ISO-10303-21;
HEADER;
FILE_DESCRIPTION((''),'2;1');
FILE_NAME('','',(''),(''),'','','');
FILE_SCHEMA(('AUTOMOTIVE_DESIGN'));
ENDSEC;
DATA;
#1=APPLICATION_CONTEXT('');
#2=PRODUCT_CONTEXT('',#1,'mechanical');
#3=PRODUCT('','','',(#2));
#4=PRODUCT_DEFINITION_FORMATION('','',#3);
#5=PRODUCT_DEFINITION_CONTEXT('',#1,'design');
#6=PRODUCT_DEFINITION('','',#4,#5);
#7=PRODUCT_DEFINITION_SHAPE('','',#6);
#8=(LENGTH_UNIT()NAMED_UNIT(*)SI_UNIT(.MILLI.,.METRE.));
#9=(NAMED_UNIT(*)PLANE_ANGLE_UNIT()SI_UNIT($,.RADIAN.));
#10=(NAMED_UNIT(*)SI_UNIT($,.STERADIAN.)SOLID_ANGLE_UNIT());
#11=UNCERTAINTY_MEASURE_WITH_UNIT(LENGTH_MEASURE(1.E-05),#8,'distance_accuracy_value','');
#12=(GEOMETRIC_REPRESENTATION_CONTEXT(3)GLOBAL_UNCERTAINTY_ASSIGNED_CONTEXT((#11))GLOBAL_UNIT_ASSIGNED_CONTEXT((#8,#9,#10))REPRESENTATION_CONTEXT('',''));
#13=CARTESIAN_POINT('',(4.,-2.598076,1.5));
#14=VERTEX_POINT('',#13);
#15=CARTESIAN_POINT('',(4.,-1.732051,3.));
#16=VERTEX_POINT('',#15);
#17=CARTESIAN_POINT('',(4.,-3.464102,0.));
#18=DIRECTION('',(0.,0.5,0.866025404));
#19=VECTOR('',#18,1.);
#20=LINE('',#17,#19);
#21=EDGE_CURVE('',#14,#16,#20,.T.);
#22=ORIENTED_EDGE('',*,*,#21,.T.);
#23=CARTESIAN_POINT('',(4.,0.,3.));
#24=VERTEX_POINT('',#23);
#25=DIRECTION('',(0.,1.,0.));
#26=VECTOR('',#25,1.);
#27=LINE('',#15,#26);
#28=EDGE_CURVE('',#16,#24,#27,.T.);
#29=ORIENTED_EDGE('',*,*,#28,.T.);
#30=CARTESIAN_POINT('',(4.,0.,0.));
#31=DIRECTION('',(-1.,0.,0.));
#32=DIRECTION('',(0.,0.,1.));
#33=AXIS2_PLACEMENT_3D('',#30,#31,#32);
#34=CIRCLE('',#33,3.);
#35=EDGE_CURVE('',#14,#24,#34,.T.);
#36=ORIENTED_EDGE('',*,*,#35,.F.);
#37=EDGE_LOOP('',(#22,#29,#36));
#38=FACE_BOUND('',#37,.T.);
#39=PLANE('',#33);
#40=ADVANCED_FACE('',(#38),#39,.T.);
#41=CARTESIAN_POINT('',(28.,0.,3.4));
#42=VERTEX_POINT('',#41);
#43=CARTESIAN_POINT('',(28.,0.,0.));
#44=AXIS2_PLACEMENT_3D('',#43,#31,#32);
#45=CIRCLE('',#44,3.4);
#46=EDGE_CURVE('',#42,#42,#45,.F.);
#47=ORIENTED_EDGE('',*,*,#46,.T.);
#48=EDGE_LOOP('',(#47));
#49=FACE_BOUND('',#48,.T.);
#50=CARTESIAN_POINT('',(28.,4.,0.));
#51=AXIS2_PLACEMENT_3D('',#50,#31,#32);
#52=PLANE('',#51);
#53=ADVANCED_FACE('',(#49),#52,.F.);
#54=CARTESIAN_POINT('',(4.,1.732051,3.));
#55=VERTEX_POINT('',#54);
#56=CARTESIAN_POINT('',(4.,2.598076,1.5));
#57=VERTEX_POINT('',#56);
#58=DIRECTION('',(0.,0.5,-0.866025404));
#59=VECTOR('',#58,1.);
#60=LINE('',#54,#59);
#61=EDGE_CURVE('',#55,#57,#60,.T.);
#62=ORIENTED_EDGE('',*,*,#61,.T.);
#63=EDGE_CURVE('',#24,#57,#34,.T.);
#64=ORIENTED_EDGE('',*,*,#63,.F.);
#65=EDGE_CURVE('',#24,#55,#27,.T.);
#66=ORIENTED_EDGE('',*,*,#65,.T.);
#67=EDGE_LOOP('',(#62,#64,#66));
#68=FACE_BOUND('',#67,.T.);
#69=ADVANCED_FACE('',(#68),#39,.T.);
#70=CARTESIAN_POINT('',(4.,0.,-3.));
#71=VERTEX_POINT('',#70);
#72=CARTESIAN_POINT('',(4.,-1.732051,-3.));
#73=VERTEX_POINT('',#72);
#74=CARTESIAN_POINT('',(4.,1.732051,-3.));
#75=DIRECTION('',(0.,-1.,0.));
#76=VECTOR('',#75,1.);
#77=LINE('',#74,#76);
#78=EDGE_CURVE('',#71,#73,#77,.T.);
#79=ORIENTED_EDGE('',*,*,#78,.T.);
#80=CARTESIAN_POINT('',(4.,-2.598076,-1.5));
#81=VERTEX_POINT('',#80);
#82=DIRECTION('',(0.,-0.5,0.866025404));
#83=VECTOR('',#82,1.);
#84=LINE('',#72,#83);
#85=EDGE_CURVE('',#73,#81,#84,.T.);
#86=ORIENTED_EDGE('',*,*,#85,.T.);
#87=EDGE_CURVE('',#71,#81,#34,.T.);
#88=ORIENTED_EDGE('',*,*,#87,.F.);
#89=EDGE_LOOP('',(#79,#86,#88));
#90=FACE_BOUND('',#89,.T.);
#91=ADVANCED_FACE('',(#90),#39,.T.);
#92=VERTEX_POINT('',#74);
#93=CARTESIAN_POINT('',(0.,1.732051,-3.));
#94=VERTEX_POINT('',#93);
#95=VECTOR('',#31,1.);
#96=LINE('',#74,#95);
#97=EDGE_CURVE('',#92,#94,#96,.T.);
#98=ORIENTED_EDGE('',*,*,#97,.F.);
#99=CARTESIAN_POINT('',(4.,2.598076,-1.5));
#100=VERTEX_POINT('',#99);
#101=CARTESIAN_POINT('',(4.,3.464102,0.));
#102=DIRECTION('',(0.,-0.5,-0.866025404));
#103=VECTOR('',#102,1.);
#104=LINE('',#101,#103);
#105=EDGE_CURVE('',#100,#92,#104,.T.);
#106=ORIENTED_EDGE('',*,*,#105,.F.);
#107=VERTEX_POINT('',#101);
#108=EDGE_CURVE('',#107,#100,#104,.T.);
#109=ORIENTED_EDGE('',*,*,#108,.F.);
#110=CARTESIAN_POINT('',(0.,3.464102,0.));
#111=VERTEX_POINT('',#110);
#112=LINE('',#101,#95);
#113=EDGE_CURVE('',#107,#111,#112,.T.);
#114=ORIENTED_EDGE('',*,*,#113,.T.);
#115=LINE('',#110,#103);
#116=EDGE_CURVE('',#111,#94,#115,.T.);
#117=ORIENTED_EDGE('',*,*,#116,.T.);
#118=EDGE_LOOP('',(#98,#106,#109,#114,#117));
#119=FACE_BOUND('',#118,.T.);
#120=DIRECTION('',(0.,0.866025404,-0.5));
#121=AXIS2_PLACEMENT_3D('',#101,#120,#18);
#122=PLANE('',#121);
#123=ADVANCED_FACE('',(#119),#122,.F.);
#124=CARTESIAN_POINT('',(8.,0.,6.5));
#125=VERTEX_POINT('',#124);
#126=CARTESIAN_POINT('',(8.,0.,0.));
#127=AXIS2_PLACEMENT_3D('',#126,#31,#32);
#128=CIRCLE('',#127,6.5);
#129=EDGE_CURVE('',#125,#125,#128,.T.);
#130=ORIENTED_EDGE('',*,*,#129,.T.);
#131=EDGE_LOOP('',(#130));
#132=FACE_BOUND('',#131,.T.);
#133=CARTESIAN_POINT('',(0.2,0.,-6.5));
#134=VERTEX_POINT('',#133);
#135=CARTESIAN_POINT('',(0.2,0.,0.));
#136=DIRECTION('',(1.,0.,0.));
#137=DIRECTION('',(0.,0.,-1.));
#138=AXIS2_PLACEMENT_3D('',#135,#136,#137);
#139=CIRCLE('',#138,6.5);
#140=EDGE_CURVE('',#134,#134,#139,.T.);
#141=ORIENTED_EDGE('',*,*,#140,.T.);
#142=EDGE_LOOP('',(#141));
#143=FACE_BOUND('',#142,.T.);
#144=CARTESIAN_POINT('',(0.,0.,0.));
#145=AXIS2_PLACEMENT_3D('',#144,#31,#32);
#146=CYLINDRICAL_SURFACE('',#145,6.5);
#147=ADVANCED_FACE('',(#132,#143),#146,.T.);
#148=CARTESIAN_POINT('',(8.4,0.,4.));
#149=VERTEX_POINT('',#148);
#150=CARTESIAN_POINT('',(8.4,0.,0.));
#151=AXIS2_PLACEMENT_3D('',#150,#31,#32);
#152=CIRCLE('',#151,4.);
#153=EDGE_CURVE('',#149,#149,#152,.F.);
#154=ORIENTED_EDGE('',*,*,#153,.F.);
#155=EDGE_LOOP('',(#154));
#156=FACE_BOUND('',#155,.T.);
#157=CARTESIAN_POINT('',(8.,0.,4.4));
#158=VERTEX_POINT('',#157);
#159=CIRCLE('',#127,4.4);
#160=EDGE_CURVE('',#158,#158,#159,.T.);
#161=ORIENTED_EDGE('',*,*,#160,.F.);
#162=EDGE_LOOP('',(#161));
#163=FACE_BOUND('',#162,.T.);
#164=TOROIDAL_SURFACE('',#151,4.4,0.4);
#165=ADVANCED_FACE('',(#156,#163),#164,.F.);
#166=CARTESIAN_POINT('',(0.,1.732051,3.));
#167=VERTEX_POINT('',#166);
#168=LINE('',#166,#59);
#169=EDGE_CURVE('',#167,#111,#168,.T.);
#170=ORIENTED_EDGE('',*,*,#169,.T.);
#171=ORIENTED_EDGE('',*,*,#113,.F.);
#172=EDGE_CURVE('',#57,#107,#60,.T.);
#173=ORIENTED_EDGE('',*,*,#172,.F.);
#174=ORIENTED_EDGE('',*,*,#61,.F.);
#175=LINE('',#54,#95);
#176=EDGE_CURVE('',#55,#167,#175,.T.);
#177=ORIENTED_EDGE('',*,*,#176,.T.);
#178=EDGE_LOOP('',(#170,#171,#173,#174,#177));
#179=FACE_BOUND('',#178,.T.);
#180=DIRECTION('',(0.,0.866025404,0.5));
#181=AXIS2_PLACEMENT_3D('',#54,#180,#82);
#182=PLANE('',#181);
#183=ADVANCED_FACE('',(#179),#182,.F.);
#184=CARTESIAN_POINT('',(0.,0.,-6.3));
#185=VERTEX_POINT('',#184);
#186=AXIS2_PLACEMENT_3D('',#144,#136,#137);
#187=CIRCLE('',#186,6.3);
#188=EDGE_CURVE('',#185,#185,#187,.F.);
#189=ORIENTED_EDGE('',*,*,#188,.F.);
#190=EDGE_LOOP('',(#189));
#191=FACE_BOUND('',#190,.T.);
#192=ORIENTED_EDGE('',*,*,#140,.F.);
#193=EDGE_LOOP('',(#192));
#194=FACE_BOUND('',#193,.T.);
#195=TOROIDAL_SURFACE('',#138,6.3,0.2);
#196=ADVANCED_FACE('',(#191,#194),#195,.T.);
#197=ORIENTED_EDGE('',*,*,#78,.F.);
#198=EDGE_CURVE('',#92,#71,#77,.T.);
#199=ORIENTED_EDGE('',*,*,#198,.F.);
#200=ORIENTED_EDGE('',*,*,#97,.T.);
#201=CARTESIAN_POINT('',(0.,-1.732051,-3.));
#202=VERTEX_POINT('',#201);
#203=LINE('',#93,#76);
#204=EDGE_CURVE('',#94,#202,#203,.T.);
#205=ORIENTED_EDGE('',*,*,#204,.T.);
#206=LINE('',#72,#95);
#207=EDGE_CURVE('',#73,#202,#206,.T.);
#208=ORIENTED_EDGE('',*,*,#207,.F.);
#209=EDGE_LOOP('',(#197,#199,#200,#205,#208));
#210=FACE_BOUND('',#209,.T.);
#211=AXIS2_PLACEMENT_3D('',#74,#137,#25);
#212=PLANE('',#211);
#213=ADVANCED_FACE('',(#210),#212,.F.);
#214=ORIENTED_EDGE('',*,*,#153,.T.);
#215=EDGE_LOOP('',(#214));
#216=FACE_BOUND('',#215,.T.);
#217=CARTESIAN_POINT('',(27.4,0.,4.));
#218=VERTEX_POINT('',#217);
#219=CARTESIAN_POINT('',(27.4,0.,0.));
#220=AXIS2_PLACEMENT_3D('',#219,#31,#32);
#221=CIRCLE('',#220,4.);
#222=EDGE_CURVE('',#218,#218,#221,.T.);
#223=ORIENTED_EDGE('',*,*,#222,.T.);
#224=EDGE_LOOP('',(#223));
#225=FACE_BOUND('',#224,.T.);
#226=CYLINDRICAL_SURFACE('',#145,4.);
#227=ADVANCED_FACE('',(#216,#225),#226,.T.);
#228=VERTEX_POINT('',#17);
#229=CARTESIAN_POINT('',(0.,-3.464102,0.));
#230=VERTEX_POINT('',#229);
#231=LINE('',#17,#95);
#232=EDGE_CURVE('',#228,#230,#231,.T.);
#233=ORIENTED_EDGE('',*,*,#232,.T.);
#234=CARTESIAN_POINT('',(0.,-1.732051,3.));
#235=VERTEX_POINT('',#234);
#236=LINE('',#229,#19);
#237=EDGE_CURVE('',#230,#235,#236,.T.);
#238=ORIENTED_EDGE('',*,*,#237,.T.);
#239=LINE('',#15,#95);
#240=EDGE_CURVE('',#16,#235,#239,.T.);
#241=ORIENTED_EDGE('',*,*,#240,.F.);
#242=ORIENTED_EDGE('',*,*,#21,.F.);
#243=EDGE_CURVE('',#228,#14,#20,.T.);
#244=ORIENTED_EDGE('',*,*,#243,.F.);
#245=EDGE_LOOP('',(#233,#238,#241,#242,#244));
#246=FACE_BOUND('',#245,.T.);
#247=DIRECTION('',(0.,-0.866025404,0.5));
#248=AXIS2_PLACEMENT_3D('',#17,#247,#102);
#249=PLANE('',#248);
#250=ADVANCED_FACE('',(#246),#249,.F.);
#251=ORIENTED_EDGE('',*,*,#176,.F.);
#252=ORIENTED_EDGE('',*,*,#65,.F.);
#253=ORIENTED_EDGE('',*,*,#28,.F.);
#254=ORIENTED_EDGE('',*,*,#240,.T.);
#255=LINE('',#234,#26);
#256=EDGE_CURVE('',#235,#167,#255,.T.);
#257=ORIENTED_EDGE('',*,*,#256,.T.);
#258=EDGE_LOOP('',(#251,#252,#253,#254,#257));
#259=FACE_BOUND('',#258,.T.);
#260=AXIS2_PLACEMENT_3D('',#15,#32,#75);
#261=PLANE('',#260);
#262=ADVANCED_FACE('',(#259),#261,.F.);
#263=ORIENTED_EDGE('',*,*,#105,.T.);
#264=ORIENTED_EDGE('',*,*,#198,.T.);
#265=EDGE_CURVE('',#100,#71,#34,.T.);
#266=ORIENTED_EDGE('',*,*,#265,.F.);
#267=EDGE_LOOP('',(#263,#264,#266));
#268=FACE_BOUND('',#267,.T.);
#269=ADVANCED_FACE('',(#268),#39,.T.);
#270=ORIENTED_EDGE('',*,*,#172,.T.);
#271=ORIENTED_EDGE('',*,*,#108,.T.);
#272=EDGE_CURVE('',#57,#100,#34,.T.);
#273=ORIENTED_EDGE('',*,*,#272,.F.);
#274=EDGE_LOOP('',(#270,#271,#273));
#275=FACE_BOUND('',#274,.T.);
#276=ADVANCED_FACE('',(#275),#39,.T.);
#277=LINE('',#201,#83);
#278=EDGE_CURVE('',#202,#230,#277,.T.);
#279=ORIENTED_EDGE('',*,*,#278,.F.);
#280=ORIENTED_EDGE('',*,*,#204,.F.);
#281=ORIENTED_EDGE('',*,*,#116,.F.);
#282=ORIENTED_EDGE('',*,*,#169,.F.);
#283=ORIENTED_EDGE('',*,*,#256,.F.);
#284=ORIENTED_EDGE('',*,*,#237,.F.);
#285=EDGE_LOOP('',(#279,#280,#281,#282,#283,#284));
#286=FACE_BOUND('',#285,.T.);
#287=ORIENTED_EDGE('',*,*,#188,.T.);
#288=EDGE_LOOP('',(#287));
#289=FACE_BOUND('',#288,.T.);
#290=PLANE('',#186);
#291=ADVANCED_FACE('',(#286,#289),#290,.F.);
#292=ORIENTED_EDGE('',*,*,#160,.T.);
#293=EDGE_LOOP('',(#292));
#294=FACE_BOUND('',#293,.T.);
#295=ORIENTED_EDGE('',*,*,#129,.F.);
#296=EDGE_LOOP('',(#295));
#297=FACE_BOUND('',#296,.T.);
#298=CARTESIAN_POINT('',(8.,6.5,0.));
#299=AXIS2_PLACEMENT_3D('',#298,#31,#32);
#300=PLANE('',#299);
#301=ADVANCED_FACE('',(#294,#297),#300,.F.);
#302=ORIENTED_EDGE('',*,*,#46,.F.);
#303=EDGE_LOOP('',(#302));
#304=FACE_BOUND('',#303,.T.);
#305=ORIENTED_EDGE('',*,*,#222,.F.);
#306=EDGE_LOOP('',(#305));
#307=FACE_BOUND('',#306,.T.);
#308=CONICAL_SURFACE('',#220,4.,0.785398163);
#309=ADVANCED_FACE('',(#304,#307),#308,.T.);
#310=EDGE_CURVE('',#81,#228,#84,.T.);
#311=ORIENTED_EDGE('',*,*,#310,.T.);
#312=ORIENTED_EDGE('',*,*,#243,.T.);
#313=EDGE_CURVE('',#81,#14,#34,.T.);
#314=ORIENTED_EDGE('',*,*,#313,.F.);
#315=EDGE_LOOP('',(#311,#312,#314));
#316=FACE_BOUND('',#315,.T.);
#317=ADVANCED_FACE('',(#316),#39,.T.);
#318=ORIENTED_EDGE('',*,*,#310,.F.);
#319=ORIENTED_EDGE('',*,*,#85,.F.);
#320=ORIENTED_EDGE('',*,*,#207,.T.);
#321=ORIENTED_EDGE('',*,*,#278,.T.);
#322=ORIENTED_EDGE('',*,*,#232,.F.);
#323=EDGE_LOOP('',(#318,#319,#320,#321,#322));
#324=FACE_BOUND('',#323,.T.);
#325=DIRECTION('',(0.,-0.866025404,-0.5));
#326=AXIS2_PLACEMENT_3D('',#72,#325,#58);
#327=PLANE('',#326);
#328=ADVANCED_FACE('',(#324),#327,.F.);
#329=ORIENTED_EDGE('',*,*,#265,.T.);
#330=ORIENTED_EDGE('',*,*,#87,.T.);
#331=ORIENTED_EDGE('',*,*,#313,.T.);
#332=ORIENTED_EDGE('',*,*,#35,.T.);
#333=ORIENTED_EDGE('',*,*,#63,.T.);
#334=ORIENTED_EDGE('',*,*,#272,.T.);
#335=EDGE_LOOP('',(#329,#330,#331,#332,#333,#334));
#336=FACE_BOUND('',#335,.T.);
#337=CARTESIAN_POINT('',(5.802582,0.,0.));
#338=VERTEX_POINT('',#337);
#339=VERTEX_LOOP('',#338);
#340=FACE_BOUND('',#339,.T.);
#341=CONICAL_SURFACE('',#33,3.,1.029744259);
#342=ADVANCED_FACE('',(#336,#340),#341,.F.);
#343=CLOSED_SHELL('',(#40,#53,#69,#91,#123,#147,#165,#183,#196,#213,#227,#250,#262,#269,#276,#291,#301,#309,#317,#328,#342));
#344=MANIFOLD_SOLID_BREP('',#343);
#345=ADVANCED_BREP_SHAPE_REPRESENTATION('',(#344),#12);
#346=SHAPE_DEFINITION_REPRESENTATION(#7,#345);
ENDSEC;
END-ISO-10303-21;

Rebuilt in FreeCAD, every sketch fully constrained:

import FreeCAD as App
import Part
import Sketcher

V = App.Vector
Q = App.Units.Quantity


def edges_at(feature, points):
    """Names of the edges that pass closest to the given points."""
    edges = feature.Shape.Edges
    near = lambda p: min(range(len(edges)), key=lambda i: edges[i].distToShape(Part.Vertex(*p))[0])
    return sorted({f"Edge{near(p) + 1}" for p in points})


def add_polygon(sketch, points):
    """Adds a closed chain of lines whose ends are joined by coincident constraints."""
    first, n = sketch.GeometryCount, len(points)
    for a, b in zip(points, points[1:] + points[:1]):
        sketch.addGeometry(Part.LineSegment(App.Vector(*a, 0), App.Vector(*b, 0)), False)
    for i in range(n):
        sketch.addConstraint(Sketcher.Constraint("Coincident", first + i, 2, first + (i + 1) % n, 1))

doc = App.newDocument("Part")
body = doc.addObject("PartDesign::Body", "Body")

# Sketch on XY plane
sketch1 = doc.addObject("Sketcher::SketchObject", "Sketch")
body.addObject(sketch1)
sketch1.AttachmentSupport = (doc.XY_Plane, [""])
sketch1.MapMode = "FlatFace"
add_polygon(sketch1, [(0, 6.5), (0, 0), (28, 0), (28, 4), (8, 4), (8, 6.5)])  # lines 0-5
sketch1.addConstraint(Sketcher.Constraint("Vertical", 0))
sketch1.addConstraint(Sketcher.Constraint("Horizontal", 1))
sketch1.addConstraint(Sketcher.Constraint("Vertical", 2))
sketch1.addConstraint(Sketcher.Constraint("Horizontal", 3))
sketch1.addConstraint(Sketcher.Constraint("Vertical", 4))
sketch1.addConstraint(Sketcher.Constraint("Horizontal", 5))
sketch1.addConstraint(Sketcher.Constraint("Coincident", 0, 2, -1, 1))
sketch1.addConstraint(Sketcher.Constraint("DistanceX", 1, 1, 1, 2, Q("28 mm")))
sketch1.addConstraint(Sketcher.Constraint("DistanceX", 3, 2, 3, 1, Q("20 mm")))
sketch1.addConstraint(Sketcher.Constraint("DistanceY", 2, 1, 2, 2, Q("4 mm")))
sketch1.addConstraint(Sketcher.Constraint("DistanceY", 0, 2, 0, 1, Q("6.5 mm")))
revolution = doc.addObject("PartDesign::Revolution", "Revolution")
body.addObject(revolution)
revolution.Profile = sketch1
revolution.ReferenceAxis = (sketch1, ["H_Axis"])
revolution.Angle = 360

# Sketch on YZ plane
sketch2 = doc.addObject("Sketcher::SketchObject", "Sketch001")
body.addObject(sketch2)
sketch2.AttachmentSupport = (doc.YZ_Plane, [""])
sketch2.MapMode = "FlatFace"
sketch2.addGeometry(Part.Circle(V(0, 0, 0), V(0, 0, 1), 3), False)
sketch2.addConstraint(Sketcher.Constraint("Coincident", 0, 3, -1, 1))
sketch2.addConstraint(Sketcher.Constraint("Diameter", 0, Q("6 mm")))
doc.recompute()
hole = doc.addObject("PartDesign::Hole", "Hole")
body.addObject(hole)
hole.Profile = sketch2
hole.ThreadType = "None"
hole.Diameter = 6
hole.DepthType = "Dimension"
hole.Depth = 4
hole.DrillPoint = "Angled"
hole.DrillPointAngle = 118
hole.Reversed = True

# Sketch on YZ plane
sketch3 = doc.addObject("Sketcher::SketchObject", "Sketch002")
body.addObject(sketch3)
sketch3.AttachmentSupport = (doc.YZ_Plane, [""])
sketch3.MapMode = "FlatFace"
add_polygon(sketch3, [(1.7, 3), (3.5, 0), (1.7, -3), (-1.7, -3), (-3.5, 0), (-1.7, 3)])  # lines 0-5
sketch3.addConstraint(Sketcher.Constraint("Horizontal", 2))
sketch3.addConstraint(Sketcher.Constraint("Horizontal", 5))
sketch3.addConstraint(Sketcher.Constraint("Symmetric", 0, 2, 3, 2, -1, 1))
sketch3.addConstraint(Sketcher.Constraint("Symmetric", 1, 2, 4, 2, -1, 1))
sketch3.addConstraint(Sketcher.Constraint("PointOnObject", 0, 2, -1))
sketch3.addConstraint(Sketcher.Constraint("Parallel", 0, 3))
sketch3.addConstraint(Sketcher.Constraint("Vertical", 2, 2, 4, 2))
sketch3.addConstraint(Sketcher.Constraint("Angle", 0, Q("-60 deg")))
sketch3.addConstraint(Sketcher.Constraint("DistanceY", 1, 2, -1, 1, Q("3 mm")))
sketch3.addConstraint(Sketcher.Constraint("DistanceX", 2, 2, 2, 1, Q("3.464102 mm")))
pocket1 = doc.addObject("PartDesign::Pocket", "Pocket")
body.addObject(pocket1)
pocket1.Profile = sketch3
pocket1.Length = 4
pocket1.Reversed = True
doc.recompute()

fillet = doc.addObject("PartDesign::Fillet", "Fillet")
body.addObject(fillet)
fillet.Base = (pocket1, edges_at(pocket1, [(0, -6.5, 0)]))
fillet.Radius = 0.2
doc.recompute()

chamfer = doc.addObject("PartDesign::Chamfer", "Chamfer")
body.addObject(chamfer)
chamfer.Base = (fillet, edges_at(fillet, [(28, -4, 0)]))
chamfer.Size = 0.6
doc.recompute()

fillet2 = doc.addObject("PartDesign::Fillet", "Fillet001")
body.addObject(fillet2)
fillet2.Base = (chamfer, edges_at(chamfer, [(8, -4, 0)]))
fillet2.Radius = 0.4

doc.recompute()
